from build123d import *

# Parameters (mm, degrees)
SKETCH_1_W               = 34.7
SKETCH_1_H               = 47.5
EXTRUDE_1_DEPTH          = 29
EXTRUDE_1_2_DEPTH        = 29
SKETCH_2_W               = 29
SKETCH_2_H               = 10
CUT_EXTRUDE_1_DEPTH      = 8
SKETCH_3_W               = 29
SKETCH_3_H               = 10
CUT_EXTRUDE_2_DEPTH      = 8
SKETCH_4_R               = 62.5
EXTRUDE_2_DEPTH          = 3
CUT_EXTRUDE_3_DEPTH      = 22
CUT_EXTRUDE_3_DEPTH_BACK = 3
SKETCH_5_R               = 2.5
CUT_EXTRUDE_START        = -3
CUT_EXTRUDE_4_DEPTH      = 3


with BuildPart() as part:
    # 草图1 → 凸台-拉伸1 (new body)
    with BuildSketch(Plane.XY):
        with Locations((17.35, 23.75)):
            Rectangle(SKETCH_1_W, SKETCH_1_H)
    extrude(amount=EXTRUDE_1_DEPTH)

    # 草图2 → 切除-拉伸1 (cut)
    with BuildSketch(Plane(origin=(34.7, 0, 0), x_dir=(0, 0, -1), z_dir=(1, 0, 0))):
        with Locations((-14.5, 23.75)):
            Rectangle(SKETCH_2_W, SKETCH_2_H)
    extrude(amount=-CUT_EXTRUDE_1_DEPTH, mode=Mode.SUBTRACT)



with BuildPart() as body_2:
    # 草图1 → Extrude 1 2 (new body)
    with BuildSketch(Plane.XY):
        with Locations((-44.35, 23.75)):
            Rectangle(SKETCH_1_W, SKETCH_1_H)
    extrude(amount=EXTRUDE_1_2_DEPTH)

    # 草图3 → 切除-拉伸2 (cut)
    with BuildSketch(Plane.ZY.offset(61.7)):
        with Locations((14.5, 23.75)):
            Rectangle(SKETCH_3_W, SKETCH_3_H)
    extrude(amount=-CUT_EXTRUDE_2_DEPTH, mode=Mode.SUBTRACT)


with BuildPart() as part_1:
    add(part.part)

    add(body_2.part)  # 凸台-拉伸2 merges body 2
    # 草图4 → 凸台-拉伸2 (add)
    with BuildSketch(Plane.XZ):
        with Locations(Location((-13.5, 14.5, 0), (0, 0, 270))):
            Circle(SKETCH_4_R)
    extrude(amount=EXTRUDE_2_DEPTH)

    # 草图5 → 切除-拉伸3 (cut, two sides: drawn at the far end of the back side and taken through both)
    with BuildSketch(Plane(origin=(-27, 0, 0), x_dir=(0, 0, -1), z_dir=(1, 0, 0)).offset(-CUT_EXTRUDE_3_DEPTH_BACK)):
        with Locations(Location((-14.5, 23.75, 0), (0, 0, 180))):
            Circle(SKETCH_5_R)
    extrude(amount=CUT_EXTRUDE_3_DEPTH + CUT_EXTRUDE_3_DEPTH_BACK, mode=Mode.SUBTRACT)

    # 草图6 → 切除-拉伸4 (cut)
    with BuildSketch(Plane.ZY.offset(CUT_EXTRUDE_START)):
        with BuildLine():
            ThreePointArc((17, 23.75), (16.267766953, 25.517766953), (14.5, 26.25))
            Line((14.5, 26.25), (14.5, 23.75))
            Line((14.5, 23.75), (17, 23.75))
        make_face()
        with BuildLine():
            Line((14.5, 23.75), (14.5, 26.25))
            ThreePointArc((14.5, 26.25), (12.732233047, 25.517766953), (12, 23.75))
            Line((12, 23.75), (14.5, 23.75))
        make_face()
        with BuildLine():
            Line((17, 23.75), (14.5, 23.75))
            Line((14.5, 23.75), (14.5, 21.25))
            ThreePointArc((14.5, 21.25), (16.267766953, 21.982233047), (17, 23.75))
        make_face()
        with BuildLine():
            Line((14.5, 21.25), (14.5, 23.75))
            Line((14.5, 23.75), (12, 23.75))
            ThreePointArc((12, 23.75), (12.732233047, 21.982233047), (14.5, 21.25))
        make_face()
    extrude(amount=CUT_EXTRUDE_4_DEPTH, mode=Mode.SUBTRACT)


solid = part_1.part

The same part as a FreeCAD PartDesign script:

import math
import FreeCAD as App
import Part
import Sketcher
Q = App.Units.Quantity

doc = App.newDocument("Part")
body = doc.addObject("PartDesign::Body", "Body")

# Sketch on XY plane
sketch1 = body.newObject("Sketcher::SketchObject", "Sketch")
sketch1.AttachmentSupport = (doc.getObject("XY_Plane"), [""])
sketch1.MapMode = "FlatFace"
sketch1.addGeometry([
    Part.LineSegment(App.Vector(0, 47.5, 0), App.Vector(0, 0, 0)),
    Part.LineSegment(App.Vector(0, 0, 0), App.Vector(34.7, 0, 0)),
    Part.LineSegment(App.Vector(34.7, 0, 0), App.Vector(34.7, 47.5, 0)),
    Part.LineSegment(App.Vector(34.7, 47.5, 0), App.Vector(0, 47.5, 0)),
], False)
sketch1.addConstraint([
    Sketcher.Constraint("Coincident", 0, 2, 1, 1),
    Sketcher.Constraint("Coincident", 1, 2, 2, 1),
    Sketcher.Constraint("Coincident", 2, 2, 3, 1),
    Sketcher.Constraint("Coincident", 3, 2, 0, 1),
    Sketcher.Constraint("Vertical", 0),
    Sketcher.Constraint("Horizontal", 1),
    Sketcher.Constraint("Vertical", 2),
    Sketcher.Constraint("Horizontal", 3),
    Sketcher.Constraint("Coincident", 0, 2, -1, 1),
    Sketcher.Constraint("DistanceX", 1, 1, 1, 2, Q("34.7 mm")),
    Sketcher.Constraint("DistanceY", 0, 2, 0, 1, Q("47.5 mm")),
])
pad1 = body.newObject("PartDesign::Pad", "Pad")
pad1.Profile = sketch1
pad1.Length = 29

# Sketch on YZ plane
sketch2 = body.newObject("Sketcher::SketchObject", "Sketch001")
sketch2.AttachmentSupport = (doc.getObject("YZ_Plane"), [""])
sketch2.MapMode = "FlatFace"
sketch2.AttachmentOffset = App.Placement(App.Vector(0, 0, 34.7), App.Rotation())
sketch2.addGeometry([
    Part.LineSegment(App.Vector(28.75, 29, 0), App.Vector(18.75, 29, 0)),
    Part.LineSegment(App.Vector(18.75, 29, 0), App.Vector(18.75, 0, 0)),
    Part.LineSegment(App.Vector(18.75, 0, 0), App.Vector(28.75, 0, 0)),
    Part.LineSegment(App.Vector(28.75, 0, 0), App.Vector(28.75, 29, 0)),
], False)
sketch2.addConstraint([
    Sketcher.Constraint("Coincident", 0, 2, 1, 1),
    Sketcher.Constraint("Coincident", 1, 2, 2, 1),
    Sketcher.Constraint("Coincident", 2, 2, 3, 1),
    Sketcher.Constraint("Coincident", 3, 2, 0, 1),
    Sketcher.Constraint("Horizontal", 0),
    Sketcher.Constraint("Vertical", 1),
    Sketcher.Constraint("Horizontal", 2),
    Sketcher.Constraint("Vertical", 3),
    Sketcher.Constraint("PointOnObject", 1, 2, -1),
    Sketcher.Constraint("DistanceX", 0, 2, 0, 1, Q("10 mm")),
    Sketcher.Constraint("DistanceY", 1, 2, 1, 1, Q("29 mm")),
    Sketcher.Constraint("DistanceX", -1, 1, 0, 2, Q("18.75 mm")),
])
pocket1 = body.newObject("PartDesign::Pocket", "Pocket")
pocket1.Profile = sketch2
pocket1.Length = 8
body2 = doc.addObject("PartDesign::Body", "Body001")

# Sketch on XY plane
sketch3 = body2.newObject("Sketcher::SketchObject", "Sketch002")
sketch3.AttachmentSupport = (doc.getObject("XY_Plane001"), [""])
sketch3.MapMode = "FlatFace"
sketch3.addGeometry([
    Part.LineSegment(App.Vector(-61.7, 47.5, 0), App.Vector(-61.7, 0, 0)),
    Part.LineSegment(App.Vector(-61.7, 0, 0), App.Vector(-27, 0, 0)),
    Part.LineSegment(App.Vector(-27, 0, 0), App.Vector(-27, 47.5, 0)),
    Part.LineSegment(App.Vector(-27, 47.5, 0), App.Vector(-61.7, 47.5, 0)),
], False)
sketch3.addConstraint([
    Sketcher.Constraint("Coincident", 0, 2, 1, 1),
    Sketcher.Constraint("Coincident", 1, 2, 2, 1),
    Sketcher.Constraint("Coincident", 2, 2, 3, 1),
    Sketcher.Constraint("Coincident", 3, 2, 0, 1),
    Sketcher.Constraint("Vertical", 0),
    Sketcher.Constraint("Horizontal", 1),
    Sketcher.Constraint("Vertical", 2),
    Sketcher.Constraint("Horizontal", 3),
    Sketcher.Constraint("PointOnObject", 0, 2, -1),
    Sketcher.Constraint("DistanceX", 1, 1, 1, 2, Q("34.7 mm")),
    Sketcher.Constraint("DistanceY", 0, 2, 0, 1, Q("47.5 mm")),
    Sketcher.Constraint("DistanceX", 1, 2, -1, 1, Q("27 mm")),
])
pad2 = body2.newObject("PartDesign::Pad", "Pad001")
pad2.Profile = sketch3
pad2.Length = 29

# Sketch on YZ plane
sketch4 = body2.newObject("Sketcher::SketchObject", "Sketch003")
sketch4.AttachmentSupport = (doc.getObject("YZ_Plane001"), [""])
sketch4.MapMode = "FlatFace"
sketch4.AttachmentOffset = App.Placement(App.Vector(0, 0, -61.7), App.Rotation())
sketch4.addGeometry([
    Part.LineSegment(App.Vector(28.75, 0, 0), App.Vector(18.75, 0, 0)),
    Part.LineSegment(App.Vector(18.75, 0, 0), App.Vector(18.75, 29, 0)),
    Part.LineSegment(App.Vector(18.75, 29, 0), App.Vector(28.75, 29, 0)),
    Part.LineSegment(App.Vector(28.75, 29, 0), App.Vector(28.75, 0, 0)),
], False)
sketch4.addConstraint([
    Sketcher.Constraint("Coincident", 0, 2, 1, 1),
    Sketcher.Constraint("Coincident", 1, 2, 2, 1),
    Sketcher.Constraint("Coincident", 2, 2, 3, 1),
    Sketcher.Constraint("Coincident", 3, 2, 0, 1),
    Sketcher.Constraint("Horizontal", 0),
    Sketcher.Constraint("Vertical", 1),
    Sketcher.Constraint("Horizontal", 2),
    Sketcher.Constraint("Vertical", 3),
    Sketcher.Constraint("PointOnObject", 0, 2, -1),
    Sketcher.Constraint("DistanceX", 0, 2, 0, 1, Q("10 mm")),
    Sketcher.Constraint("DistanceY", 1, 1, 1, 2, Q("29 mm")),
    Sketcher.Constraint("DistanceX", -1, 1, 0, 2, Q("18.75 mm")),
])
pocket2 = body2.newObject("PartDesign::Pocket", "Pocket001")
pocket2.Profile = sketch4
pocket2.Length = 8
pocket2.Reversed = True
body.AllowCompound = True
doc.recompute()

boolean = body.newObject("PartDesign::Boolean", "Boolean")
boolean.Type = "Fuse"
boolean.addObjects([body2])

# Sketch on XZ plane
sketch5 = body.newObject("Sketcher::SketchObject", "Sketch004")
sketch5.AttachmentSupport = (doc.getObject("XZ_Plane"), [""])
sketch5.MapMode = "FlatFace"
sketch5.addGeometry(Part.Circle(App.Vector(-13.5, 14.5, 0), App.Vector(0, 0, 1), 62.5), False)
sketch5.addConstraint([
    Sketcher.Constraint("Diameter", 0, Q("125 mm")),
    Sketcher.Constraint("DistanceX", 0, 3, -1, 1, Q("13.5 mm")),
    Sketcher.Constraint("DistanceY", -1, 1, 0, 3, Q("14.5 mm")),
])
pad3 = body.newObject("PartDesign::Pad", "Pad002")
pad3.Profile = sketch5
pad3.Length = 3

# Sketch on YZ plane
sketch6 = body.newObject("Sketcher::SketchObject", "Sketch005")
sketch6.AttachmentSupport = (doc.getObject("YZ_Plane"), [""])
sketch6.MapMode = "FlatFace"
sketch6.AttachmentOffset = App.Placement(App.Vector(0, 0, -27), App.Rotation())
sketch6.addGeometry(Part.Circle(App.Vector(23.75, 14.5, 0), App.Vector(0, 0, 1), 2.5), False)
sketch6.addConstraint([
    Sketcher.Constraint("Diameter", 0, Q("5 mm")),
    Sketcher.Constraint("DistanceY", -1, 1, 0, 3, Q("14.5 mm")),
    Sketcher.Constraint("DistanceX", -1, 1, 0, 3, Q("23.75 mm")),
])
pocket3 = body.newObject("PartDesign::Pocket", "Pocket002")
pocket3.Profile = sketch6
pocket3.Type = "TwoLengths"
pocket3.Length = 22
pocket3.Length2 = 3
pocket3.Reversed = True

# Sketch on YZ plane
sketch7 = body.newObject("Sketcher::SketchObject", "Sketch006")
sketch7.AttachmentSupport = (doc.getObject("YZ_Plane"), [""])
sketch7.MapMode = "FlatFace"
sketch7.AttachmentOffset = App.Placement(App.Vector(0, 0, 3), App.Rotation())
sketch7.addGeometry([
    Part.ArcOfCircle(Part.Circle(App.Vector(23.75, 14.5, 0), App.Vector(0, 0, 1), 2.5), math.radians(-90), math.radians(0)),
    Part.ArcOfCircle(Part.Circle(App.Vector(23.75, 14.5, 0), App.Vector(0, 0, 1), 2.5), math.radians(180), math.radians(270)),
    Part.ArcOfCircle(Part.Circle(App.Vector(23.75, 14.5, 0), App.Vector(0, 0, 1), 2.5), math.radians(90), math.radians(180)),
    Part.ArcOfCircle(Part.Circle(App.Vector(23.75, 14.5, 0), App.Vector(0, 0, 1), 2.5), math.radians(0), math.radians(90)),
], False)
sketch7.addConstraint([
    Sketcher.Constraint("Tangent", 0, 1, 1, 2),
    Sketcher.Constraint("Tangent", 1, 1, 2, 2),
    Sketcher.Constraint("Tangent", 2, 1, 3, 2),
    Sketcher.Constraint("Tangent", 3, 1, 0, 2),
    Sketcher.Constraint("Equal", 0, 1),
    Sketcher.Constraint("Horizontal", 3, 3, 1, 1),
    Sketcher.Constraint("Horizontal", 1, 1, 3, 1),
    Sketcher.Constraint("Vertical", 3, 3, 0, 1),
    Sketcher.Constraint("Vertical", 0, 1, 2, 1),
    Sketcher.Constraint("Radius", 0, Q("2.5 mm")),
    Sketcher.Constraint("DistanceY", -1, 1, 0, 1, Q("12 mm")),
    Sketcher.Constraint("DistanceX", -1, 1, 0, 3, Q("23.75 mm")),
])
pocket4 = body.newObject("PartDesign::Pocket", "Pocket003")
pocket4.Profile = sketch7
pocket4.Length = 3

doc.recompute()
